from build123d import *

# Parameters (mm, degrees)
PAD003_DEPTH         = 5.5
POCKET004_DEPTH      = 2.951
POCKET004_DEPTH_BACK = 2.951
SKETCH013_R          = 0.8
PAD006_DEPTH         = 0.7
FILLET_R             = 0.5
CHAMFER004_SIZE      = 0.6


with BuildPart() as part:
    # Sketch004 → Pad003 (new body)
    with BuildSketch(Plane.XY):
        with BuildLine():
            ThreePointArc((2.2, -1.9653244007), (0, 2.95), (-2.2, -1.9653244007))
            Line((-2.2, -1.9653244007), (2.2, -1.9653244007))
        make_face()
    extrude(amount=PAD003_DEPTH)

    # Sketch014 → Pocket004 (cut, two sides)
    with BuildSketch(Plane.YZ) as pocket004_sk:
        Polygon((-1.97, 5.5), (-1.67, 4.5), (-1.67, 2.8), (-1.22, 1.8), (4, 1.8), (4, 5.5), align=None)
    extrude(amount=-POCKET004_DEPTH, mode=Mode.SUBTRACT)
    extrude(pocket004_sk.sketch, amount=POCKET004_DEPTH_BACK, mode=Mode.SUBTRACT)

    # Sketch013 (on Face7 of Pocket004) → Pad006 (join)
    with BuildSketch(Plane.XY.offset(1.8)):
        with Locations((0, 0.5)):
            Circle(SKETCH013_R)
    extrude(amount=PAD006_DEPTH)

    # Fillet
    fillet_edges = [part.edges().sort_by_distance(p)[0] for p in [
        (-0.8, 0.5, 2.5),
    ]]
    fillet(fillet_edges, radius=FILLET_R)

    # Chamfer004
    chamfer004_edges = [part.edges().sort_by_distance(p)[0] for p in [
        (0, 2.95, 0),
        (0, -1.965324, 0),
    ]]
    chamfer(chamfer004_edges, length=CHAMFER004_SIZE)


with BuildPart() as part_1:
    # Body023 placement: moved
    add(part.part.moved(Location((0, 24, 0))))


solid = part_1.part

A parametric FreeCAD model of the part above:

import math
import FreeCAD as App
import Part
import Sketcher
Q = App.Units.Quantity


def edges_at(feature, points):
    """Names of the edges that pass closest to the given points."""
    edges = feature.Shape.Edges
    near = lambda p: min(range(len(edges)), key=lambda i: edges[i].distToShape(Part.Vertex(*p))[0])
    return sorted({f"Edge{near(p) + 1}" for p in points})

doc = App.newDocument("Part")
body = doc.addObject("PartDesign::Body", "Body")

# Sketch on XY plane
sketch1 = body.newObject("Sketcher::SketchObject", "Sketch")
sketch1.AttachmentSupport = (doc.getObject("XY_Plane"), [""])
sketch1.MapMode = "FlatFace"
sketch1.addGeometry([
    Part.ArcOfCircle(Part.Circle(App.Vector(0, 0, 0), App.Vector(0, 0, 1), 2.95), math.radians(-41.775348), math.radians(221.775348)),
    Part.LineSegment(App.Vector(-2.2, -1.965324, 0), App.Vector(2.2, -1.965324, 0)),
], False)
sketch1.addConstraint([
    Sketcher.Constraint("Coincident", 0, 1, 1, 2),
    Sketcher.Constraint("Coincident", 1, 1, 0, 2),
    Sketcher.Constraint("Horizontal", 1),
    Sketcher.Constraint("Coincident", 0, 3, -1, 1),
    Sketcher.Constraint("Radius", 0, Q("2.95 mm")),
    Sketcher.Constraint("DistanceX", 1, 1, 1, 2, Q("4.4 mm")),
])
pad1 = body.newObject("PartDesign::Pad", "Pad")
pad1.Profile = sketch1
pad1.Length = 5.5

# Sketch on YZ plane
sketch2 = body.newObject("Sketcher::SketchObject", "Sketch001")
sketch2.AttachmentSupport = (doc.getObject("YZ_Plane"), [""])
sketch2.MapMode = "FlatFace"
sketch2.addGeometry([
    Part.LineSegment(App.Vector(-1.97, 5.5, 0), App.Vector(-1.67, 4.5, 0)),  # 0
    Part.LineSegment(App.Vector(-1.67, 4.5, 0), App.Vector(-1.67, 2.8, 0)),  # 1
    Part.LineSegment(App.Vector(-1.67, 2.8, 0), App.Vector(-1.22, 1.8, 0)),  # 2
    Part.LineSegment(App.Vector(-1.22, 1.8, 0), App.Vector(4, 1.8, 0)),  # 3
    Part.LineSegment(App.Vector(4, 1.8, 0), App.Vector(4, 5.5, 0)),  # 4
    Part.LineSegment(App.Vector(4, 5.5, 0), App.Vector(-1.97, 5.5, 0)),  # 5
], False)
sketch2.addConstraint([
    Sketcher.Constraint("Coincident", 0, 2, 1, 1),
    Sketcher.Constraint("Coincident", 1, 2, 2, 1),
    Sketcher.Constraint("Coincident", 2, 2, 3, 1),
    Sketcher.Constraint("Coincident", 3, 2, 4, 1),
    Sketcher.Constraint("Coincident", 4, 2, 5, 1),
    Sketcher.Constraint("Coincident", 5, 2, 0, 1),
    Sketcher.Constraint("Vertical", 1),
    Sketcher.Constraint("Horizontal", 3),
    Sketcher.Constraint("Vertical", 4),
    Sketcher.Constraint("Horizontal", 5),
    Sketcher.Constraint("DistanceY", 1, 2, 1, 1, Q("1.7 mm")),
    Sketcher.Constraint("DistanceY", 4, 1, 4, 2, Q("3.7 mm")),
    Sketcher.Constraint("DistanceX", -1, 1, 3, 2, Q("4 mm")),
    Sketcher.Constraint("DistanceY", 2, 2, 1, 2, Q("1 mm")),
    Sketcher.Constraint("DistanceX", 3, 1, 3, 2, Q("5.22 mm")),
    Sketcher.Constraint("DistanceX", 5, 2, 5, 1, Q("5.97 mm")),
    Sketcher.Constraint("DistanceY", -1, 1, 0, 2, Q("4.5 mm")),
    Sketcher.Constraint("DistanceX", 5, 2, 0, 2, Q("0.3 mm")),
])
pocket1 = body.newObject("PartDesign::Pocket", "Pocket")
pocket1.Profile = sketch2
pocket1.Type = "ThroughAll"
pocket1.Midplane = True

# Sketch on XY plane
sketch3 = body.newObject("Sketcher::SketchObject", "Sketch002")
sketch3.AttachmentSupport = (doc.getObject("XY_Plane"), [""])
sketch3.MapMode = "FlatFace"
sketch3.AttachmentOffset = App.Placement(App.Vector(0, 0, 1.8), App.Rotation())
sketch3.addGeometry(Part.Circle(App.Vector(0, 0.5, 0), App.Vector(0, 0, 1), 0.8), False)
sketch3.addConstraint([
    Sketcher.Constraint("PointOnObject", 0, 3, -2),
    Sketcher.Constraint("Diameter", 0, Q("1.6 mm")),
    Sketcher.Constraint("DistanceY", -1, 1, 0, 3, Q("0.5 mm")),
])
pad2 = body.newObject("PartDesign::Pad", "Pad001")
pad2.Profile = sketch3
pad2.Length = 0.7
doc.recompute()

fillet = body.newObject("PartDesign::Fillet", "Fillet")
fillet.Base = (pad2, edges_at(pad2, [(-0.8, 0.5, 2.5)]))
fillet.Radius = 0.5
doc.recompute()

chamfer = body.newObject("PartDesign::Chamfer", "Chamfer")
chamfer.Base = (fillet, edges_at(fillet, [(0, 2.95, 0), (0, -1.965, 0)]))
chamfer.Size = 0.6
body2 = doc.addObject("PartDesign::Body", "Body001")
doc.recompute()

body.Placement = App.Placement(App.Vector(0, 24, 0), App.Rotation(App.Vector(0, 0, 1), 0))
boolean = body2.newObject("PartDesign::Boolean", "Boolean")
boolean.Type = "Fuse"
boolean.addObjects([body])

doc.recompute()
